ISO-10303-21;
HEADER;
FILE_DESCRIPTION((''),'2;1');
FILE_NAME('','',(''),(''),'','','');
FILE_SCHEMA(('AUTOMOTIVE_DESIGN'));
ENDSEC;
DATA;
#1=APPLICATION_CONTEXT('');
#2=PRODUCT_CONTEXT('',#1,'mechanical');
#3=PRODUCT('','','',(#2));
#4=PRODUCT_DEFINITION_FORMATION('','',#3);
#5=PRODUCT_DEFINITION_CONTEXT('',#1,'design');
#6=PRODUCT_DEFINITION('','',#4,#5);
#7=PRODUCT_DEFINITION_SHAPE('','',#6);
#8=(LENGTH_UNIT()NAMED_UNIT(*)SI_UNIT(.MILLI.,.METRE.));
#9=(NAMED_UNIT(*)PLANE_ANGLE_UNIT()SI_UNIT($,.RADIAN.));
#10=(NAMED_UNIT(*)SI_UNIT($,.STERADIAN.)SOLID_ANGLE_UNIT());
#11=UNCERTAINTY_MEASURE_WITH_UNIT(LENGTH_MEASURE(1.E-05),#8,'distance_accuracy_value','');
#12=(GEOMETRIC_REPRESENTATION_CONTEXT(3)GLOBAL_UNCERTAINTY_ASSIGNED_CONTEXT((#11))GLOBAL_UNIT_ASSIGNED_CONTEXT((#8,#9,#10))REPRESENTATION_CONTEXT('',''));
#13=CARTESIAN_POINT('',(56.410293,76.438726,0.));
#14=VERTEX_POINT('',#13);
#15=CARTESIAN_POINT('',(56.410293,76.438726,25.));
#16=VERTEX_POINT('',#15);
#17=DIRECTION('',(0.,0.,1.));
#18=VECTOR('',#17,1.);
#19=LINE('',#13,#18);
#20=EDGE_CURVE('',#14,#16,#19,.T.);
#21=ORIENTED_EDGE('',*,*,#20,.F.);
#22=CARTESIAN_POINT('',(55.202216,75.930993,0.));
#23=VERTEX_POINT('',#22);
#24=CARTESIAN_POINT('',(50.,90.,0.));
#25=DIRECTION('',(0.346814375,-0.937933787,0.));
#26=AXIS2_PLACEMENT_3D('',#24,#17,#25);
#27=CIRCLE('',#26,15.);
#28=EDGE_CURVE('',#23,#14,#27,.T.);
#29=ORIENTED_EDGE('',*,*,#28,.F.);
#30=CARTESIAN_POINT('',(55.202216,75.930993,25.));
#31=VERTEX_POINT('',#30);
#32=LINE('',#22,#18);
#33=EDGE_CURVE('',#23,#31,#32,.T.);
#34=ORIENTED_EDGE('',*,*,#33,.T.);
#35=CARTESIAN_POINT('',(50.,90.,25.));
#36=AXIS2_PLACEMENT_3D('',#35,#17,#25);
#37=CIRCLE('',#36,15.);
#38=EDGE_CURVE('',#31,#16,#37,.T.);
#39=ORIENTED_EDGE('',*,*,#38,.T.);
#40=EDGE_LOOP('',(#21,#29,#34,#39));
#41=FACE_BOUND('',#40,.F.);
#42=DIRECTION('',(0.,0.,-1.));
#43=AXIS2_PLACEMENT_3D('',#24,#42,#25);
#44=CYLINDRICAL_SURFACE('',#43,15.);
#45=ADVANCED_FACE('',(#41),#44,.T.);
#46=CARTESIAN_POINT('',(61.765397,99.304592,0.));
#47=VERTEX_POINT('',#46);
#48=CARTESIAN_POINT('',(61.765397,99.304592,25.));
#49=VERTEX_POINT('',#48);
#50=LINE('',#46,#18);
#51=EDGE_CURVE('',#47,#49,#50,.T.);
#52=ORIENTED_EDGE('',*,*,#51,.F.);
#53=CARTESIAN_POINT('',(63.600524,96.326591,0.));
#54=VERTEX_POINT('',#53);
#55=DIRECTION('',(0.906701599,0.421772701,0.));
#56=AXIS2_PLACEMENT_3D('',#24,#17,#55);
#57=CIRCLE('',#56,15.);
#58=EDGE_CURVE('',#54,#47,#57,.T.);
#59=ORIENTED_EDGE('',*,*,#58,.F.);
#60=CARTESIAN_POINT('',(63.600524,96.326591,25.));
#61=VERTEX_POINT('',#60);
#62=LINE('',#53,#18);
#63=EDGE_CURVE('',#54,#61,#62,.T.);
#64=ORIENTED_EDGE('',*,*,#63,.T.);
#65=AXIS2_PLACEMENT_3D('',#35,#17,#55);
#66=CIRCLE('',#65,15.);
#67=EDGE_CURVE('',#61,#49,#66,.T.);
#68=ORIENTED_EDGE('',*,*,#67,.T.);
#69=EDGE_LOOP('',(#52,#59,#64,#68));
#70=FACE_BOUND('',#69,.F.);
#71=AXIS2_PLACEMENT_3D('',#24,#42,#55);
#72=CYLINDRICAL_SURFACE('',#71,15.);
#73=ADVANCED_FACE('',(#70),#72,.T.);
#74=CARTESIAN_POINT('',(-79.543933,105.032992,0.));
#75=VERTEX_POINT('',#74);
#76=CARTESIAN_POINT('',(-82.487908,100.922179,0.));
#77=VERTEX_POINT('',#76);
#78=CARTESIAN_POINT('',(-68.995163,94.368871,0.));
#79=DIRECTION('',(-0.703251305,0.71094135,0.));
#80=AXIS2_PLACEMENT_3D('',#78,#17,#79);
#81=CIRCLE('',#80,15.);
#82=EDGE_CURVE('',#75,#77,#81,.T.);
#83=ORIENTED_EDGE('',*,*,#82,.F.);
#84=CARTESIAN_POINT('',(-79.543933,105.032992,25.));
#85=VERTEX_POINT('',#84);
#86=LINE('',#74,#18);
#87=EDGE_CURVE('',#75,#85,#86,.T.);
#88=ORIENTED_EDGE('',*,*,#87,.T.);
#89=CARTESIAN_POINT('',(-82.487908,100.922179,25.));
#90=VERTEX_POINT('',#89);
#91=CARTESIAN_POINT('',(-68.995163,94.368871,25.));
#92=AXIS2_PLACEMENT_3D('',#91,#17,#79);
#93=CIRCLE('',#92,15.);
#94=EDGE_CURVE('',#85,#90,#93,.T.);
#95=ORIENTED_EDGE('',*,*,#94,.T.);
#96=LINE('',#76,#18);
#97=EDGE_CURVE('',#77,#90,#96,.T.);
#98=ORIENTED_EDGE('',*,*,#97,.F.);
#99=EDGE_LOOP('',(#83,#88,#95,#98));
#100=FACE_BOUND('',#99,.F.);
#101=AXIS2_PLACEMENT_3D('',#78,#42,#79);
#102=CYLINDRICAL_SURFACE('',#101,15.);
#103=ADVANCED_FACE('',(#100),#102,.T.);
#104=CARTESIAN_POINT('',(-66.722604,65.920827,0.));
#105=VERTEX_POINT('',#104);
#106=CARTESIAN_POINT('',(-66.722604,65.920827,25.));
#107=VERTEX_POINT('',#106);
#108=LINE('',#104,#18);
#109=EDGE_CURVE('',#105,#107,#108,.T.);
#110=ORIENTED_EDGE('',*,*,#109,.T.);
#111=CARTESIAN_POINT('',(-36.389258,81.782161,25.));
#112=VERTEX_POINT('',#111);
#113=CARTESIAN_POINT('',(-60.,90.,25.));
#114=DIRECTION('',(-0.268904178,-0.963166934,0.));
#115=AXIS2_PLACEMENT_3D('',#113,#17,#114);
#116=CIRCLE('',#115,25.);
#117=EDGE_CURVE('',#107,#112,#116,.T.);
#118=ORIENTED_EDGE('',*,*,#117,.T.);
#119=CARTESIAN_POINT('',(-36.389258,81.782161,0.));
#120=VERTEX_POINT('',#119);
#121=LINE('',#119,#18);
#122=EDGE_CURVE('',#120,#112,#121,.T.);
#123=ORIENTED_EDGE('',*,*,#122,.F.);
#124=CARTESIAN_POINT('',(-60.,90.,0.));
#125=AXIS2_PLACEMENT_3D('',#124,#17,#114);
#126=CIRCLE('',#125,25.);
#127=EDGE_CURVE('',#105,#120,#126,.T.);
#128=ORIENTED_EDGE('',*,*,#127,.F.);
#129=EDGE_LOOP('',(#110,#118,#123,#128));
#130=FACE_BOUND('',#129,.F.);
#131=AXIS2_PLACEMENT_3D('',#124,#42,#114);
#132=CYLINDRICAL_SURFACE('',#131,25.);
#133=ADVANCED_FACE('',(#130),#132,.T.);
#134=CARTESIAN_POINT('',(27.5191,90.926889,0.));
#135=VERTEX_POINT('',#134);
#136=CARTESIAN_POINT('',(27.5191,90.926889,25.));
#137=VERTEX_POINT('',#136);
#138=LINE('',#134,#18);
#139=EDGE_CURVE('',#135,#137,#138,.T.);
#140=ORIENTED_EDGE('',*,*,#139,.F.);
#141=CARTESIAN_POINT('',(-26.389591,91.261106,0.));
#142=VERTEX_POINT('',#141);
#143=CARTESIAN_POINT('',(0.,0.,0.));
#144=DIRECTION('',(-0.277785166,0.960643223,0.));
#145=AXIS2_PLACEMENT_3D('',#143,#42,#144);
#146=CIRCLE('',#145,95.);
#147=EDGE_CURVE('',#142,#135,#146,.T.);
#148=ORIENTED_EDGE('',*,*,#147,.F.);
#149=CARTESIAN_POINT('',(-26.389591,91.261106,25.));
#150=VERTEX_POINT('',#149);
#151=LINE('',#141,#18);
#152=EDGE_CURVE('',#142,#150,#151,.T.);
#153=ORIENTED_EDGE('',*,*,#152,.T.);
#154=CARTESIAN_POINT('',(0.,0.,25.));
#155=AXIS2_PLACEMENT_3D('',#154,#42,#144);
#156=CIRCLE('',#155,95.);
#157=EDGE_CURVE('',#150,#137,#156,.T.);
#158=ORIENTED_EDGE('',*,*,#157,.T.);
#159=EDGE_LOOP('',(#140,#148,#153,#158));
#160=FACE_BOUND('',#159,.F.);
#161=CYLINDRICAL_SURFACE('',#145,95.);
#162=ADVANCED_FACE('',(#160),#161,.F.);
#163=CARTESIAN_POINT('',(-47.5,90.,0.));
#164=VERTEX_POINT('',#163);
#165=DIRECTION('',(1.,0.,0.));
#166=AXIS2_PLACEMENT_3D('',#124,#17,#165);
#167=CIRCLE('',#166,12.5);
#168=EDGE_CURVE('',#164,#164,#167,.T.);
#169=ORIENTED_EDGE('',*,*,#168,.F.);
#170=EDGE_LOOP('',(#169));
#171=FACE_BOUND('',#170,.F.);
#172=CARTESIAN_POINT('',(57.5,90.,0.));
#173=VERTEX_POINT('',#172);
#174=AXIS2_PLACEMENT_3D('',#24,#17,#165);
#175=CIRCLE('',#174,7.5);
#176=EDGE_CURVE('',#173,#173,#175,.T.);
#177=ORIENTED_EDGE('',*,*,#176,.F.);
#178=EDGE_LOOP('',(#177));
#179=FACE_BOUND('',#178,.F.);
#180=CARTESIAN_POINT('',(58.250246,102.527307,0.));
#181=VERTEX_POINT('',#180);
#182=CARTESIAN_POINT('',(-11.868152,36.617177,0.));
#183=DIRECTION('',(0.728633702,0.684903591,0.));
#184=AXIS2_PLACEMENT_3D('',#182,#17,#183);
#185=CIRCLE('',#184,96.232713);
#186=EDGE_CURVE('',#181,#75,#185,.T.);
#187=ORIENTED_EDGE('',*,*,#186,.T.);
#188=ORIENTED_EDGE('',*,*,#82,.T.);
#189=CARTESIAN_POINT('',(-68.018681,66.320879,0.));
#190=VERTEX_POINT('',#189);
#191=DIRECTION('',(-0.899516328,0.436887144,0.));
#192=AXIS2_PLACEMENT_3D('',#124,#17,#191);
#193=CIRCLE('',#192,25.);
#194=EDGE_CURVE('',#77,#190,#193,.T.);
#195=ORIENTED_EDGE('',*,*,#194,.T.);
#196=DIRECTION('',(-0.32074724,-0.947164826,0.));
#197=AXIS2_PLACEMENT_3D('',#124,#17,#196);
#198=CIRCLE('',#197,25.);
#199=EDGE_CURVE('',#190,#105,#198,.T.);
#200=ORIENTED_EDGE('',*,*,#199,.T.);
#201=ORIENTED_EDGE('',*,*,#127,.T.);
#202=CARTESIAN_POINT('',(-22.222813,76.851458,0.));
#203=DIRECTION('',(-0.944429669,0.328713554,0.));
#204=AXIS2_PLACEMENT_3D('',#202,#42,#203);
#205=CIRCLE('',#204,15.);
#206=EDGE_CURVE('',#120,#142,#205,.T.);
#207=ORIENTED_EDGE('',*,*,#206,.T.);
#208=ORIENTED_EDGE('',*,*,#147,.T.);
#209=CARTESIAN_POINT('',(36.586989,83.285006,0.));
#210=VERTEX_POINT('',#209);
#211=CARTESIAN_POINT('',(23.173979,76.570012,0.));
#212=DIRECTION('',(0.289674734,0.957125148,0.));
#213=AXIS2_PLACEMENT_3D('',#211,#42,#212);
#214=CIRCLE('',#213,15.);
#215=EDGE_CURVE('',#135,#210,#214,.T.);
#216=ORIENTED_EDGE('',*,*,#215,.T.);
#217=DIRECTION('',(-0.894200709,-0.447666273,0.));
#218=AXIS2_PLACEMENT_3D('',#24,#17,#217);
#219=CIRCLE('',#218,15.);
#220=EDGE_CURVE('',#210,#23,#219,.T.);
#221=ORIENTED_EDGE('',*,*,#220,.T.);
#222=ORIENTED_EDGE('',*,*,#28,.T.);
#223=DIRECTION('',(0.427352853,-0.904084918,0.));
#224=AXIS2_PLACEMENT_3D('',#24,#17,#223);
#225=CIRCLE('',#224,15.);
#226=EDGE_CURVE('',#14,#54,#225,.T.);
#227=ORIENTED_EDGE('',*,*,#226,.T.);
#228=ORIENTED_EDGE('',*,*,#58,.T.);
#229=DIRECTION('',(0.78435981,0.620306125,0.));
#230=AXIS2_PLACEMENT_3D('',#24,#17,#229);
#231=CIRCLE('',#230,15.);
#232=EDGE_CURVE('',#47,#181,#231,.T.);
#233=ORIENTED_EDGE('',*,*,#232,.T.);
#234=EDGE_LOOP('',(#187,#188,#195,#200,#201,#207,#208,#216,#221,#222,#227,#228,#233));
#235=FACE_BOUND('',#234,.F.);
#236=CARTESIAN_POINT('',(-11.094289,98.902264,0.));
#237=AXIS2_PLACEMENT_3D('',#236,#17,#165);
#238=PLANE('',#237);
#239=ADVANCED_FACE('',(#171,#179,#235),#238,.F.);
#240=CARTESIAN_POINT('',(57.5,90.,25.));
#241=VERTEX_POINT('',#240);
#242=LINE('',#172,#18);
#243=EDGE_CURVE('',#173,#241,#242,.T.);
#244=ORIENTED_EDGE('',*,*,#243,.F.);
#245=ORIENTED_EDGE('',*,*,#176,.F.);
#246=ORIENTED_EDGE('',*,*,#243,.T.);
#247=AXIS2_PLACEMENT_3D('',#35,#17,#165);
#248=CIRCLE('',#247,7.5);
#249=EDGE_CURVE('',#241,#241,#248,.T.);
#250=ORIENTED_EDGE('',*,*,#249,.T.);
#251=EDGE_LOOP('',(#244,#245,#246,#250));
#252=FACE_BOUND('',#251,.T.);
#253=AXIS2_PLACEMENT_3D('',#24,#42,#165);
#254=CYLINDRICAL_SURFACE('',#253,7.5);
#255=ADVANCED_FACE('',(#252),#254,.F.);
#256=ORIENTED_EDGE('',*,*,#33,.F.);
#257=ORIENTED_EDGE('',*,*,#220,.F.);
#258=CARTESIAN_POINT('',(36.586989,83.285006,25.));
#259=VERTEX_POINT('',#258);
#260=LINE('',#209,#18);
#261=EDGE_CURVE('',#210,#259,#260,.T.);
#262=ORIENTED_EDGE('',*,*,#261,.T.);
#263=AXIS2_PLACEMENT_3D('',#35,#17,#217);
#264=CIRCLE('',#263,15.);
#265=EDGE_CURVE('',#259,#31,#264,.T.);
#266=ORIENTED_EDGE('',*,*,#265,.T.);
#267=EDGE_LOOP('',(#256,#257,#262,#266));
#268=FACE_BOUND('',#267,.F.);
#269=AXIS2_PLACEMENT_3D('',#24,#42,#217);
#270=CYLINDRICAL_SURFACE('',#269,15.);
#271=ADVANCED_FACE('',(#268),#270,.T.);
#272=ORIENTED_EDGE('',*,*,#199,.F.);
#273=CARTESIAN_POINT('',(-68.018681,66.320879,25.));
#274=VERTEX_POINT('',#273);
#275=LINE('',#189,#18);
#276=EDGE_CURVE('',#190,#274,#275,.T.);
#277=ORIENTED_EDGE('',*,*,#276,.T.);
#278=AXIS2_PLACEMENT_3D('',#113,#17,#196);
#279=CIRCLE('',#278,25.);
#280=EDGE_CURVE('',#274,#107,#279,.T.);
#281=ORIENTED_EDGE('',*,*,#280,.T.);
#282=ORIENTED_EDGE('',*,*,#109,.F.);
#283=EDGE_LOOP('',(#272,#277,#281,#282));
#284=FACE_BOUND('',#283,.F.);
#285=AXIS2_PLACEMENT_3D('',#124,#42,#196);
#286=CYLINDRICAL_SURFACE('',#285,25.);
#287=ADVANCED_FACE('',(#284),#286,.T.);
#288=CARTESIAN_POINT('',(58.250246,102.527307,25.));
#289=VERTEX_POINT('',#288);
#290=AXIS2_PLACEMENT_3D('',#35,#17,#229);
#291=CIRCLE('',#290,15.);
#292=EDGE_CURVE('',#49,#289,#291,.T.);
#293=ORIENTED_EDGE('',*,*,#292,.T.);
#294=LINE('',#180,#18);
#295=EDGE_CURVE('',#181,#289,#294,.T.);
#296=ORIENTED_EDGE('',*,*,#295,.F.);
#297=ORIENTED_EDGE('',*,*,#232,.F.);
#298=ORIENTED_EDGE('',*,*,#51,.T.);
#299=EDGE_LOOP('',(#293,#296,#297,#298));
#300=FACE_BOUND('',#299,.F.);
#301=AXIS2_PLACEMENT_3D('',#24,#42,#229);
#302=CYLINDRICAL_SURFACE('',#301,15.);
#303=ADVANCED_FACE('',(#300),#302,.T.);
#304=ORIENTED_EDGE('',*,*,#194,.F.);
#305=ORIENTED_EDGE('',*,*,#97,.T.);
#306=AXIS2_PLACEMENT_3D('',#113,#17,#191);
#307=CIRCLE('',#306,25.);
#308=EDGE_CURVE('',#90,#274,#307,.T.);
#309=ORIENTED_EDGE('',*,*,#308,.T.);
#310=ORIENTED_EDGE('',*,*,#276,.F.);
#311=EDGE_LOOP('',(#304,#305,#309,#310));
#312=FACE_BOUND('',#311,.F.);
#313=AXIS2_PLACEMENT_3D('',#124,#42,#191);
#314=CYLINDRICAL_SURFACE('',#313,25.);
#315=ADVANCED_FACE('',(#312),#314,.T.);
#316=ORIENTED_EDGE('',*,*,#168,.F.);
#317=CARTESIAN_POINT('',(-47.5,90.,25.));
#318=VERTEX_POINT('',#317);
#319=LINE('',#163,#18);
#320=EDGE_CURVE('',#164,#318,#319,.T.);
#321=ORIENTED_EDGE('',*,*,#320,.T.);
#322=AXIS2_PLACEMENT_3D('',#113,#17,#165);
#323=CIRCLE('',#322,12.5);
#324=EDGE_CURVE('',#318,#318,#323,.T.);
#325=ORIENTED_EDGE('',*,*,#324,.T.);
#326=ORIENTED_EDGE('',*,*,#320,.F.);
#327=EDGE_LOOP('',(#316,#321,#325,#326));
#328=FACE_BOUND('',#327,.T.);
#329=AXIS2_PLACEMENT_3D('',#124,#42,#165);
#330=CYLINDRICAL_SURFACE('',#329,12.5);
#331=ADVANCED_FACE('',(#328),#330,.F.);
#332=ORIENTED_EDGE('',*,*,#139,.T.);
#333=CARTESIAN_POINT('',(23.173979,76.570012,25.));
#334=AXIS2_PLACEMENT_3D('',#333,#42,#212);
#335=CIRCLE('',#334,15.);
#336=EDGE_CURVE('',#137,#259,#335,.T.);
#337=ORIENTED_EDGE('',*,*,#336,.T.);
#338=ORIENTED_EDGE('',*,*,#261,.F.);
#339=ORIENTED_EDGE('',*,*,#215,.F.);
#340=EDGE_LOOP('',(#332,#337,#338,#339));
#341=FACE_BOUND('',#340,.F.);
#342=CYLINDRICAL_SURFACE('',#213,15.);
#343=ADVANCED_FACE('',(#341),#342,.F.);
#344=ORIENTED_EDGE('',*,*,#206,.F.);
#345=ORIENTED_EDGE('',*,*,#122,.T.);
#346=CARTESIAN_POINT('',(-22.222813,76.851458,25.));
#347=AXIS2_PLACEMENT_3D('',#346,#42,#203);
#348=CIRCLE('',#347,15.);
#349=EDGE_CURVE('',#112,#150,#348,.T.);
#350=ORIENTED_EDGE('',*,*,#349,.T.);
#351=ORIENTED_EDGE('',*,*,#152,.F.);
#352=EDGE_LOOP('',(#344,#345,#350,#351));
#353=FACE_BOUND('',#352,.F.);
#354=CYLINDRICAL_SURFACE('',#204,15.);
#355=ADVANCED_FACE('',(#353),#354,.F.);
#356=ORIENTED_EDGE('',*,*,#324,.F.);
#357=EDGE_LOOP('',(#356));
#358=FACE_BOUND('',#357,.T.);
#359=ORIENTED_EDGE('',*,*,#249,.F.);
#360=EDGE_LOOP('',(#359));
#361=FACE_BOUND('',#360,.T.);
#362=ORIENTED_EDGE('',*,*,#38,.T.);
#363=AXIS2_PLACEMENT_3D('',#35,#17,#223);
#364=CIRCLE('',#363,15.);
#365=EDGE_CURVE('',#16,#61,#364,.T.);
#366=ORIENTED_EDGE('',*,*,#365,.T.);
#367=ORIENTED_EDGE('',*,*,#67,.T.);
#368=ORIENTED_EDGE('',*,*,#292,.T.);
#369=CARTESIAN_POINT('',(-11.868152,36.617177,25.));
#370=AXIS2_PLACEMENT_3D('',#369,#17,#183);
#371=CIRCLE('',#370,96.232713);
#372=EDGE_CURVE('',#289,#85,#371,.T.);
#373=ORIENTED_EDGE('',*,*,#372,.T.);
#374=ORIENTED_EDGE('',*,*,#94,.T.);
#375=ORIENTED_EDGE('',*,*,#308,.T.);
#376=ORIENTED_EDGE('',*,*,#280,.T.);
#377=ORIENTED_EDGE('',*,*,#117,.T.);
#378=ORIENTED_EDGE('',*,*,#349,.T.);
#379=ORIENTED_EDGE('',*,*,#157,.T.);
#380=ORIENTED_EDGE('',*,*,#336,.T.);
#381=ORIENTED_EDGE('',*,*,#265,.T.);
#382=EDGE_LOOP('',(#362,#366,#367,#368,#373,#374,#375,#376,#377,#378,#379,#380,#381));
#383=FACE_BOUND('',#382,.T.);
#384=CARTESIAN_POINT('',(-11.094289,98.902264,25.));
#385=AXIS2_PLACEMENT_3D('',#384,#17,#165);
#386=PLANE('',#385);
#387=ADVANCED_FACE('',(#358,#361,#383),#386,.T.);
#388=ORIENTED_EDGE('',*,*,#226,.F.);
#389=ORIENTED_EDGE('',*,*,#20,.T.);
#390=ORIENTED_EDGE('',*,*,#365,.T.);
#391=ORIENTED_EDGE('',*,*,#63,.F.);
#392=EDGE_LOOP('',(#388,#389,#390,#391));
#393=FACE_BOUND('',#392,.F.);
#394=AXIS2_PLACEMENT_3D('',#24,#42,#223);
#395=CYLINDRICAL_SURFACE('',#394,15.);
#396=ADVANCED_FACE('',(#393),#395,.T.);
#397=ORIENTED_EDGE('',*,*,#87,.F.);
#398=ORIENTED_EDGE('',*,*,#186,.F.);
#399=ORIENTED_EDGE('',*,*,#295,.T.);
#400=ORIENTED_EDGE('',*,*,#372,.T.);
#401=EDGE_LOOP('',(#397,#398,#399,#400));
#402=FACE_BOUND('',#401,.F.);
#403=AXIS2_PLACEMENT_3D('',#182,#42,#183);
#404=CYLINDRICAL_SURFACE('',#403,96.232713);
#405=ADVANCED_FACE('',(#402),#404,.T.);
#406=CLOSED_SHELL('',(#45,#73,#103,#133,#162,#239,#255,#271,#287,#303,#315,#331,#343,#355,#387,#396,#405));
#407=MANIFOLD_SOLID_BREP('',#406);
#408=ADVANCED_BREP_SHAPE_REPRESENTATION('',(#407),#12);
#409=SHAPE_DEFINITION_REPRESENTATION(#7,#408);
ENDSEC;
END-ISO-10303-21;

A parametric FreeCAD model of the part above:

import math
import FreeCAD as App
import Part
import Sketcher
from FreeCAD import Vector
Q = App.Units.Quantity

doc = App.newDocument("Part")
body = doc.addObject("PartDesign::Body", "Body")

# Sketch on XY plane
sketch1 = body.newObject("Sketcher::SketchObject", "Sketch")
sketch1.AttachmentSupport = (doc.getObject("XY_Plane"), [""])
sketch1.MapMode = "FlatFace"
sketch1.addGeometry([
    Part.ArcOfCircle(Part.Circle(Vector(-69, 94.4, 0), Vector(0, 0, 1), 15), math.radians(134.69), math.radians(154.09)),  # 0
    Part.ArcOfCircle(Part.Circle(Vector(-60, 90, 0), Vector(0, 0, 1), 25), math.radians(154), math.radians(251)),  # 1
    Part.ArcOfCircle(Part.Circle(Vector(-60, 90, 0), Vector(0, 0, 1), 25), math.radians(-108.71), math.radians(-105.6)),  # 2
    Part.ArcOfCircle(Part.Circle(Vector(-60, 90, 0), Vector(0, 0, 1), 25), math.radians(-106), math.radians(-19)),  # 3
    Part.ArcOfCircle(Part.Circle(Vector(-22.2, 76.9, 0), Vector(0, 0, 1), 15), math.radians(106), math.radians(161)),  # 4
    Part.ArcOfCircle(Part.Circle(Vector(0, 0, 0), Vector(0, 0, 1), 95), math.radians(73), math.radians(106)),  # 5
    Part.ArcOfCircle(Part.Circle(Vector(23.2, 76.6, 0), Vector(0, 0, 1), 15), math.radians(27), math.radians(73)),  # 6
    Part.ArcOfCircle(Part.Circle(Vector(50, 90, 0), Vector(0, 0, 1), 15), math.radians(-153), math.radians(-70)),  # 7
    Part.ArcOfCircle(Part.Circle(Vector(50, 90, 0), Vector(0, 0, 1), 15), math.radians(-69.71), math.radians(-64.7)),  # 8
    Part.ArcOfCircle(Part.Circle(Vector(50, 90, 0), Vector(0, 0, 1), 15), math.radians(-65), math.radians(25)),  # 9
    Part.ArcOfCircle(Part.Circle(Vector(50, 90, 0), Vector(0, 0, 1), 15), math.radians(24.95), math.radians(38.34)),  # 10
    Part.ArcOfCircle(Part.Circle(Vector(50, 90, 0), Vector(0, 0, 1), 15), math.radians(38.34), math.radians(56.63)),  # 11
    Part.ArcOfCircle(Part.Circle(Vector(-11.9, 36.6, 0), Vector(0, 0, 1), 96.2), math.radians(43), math.radians(135)),  # 12
    Part.Circle(Vector(-60, 90, 0), Vector(0, 0, 1), 12.5),  # 13
    Part.Circle(Vector(50, 90, 0), Vector(0, 0, 1), 7.5),  # 14
], False)
sketch1.addConstraint([
    Sketcher.Constraint("Tangent", 0, 2, 1, 1),
    Sketcher.Constraint("Tangent", 1, 2, 2, 1),
    Sketcher.Constraint("Tangent", 2, 2, 3, 1),
    Sketcher.Constraint("Tangent", 3, 2, 4, 2),
    Sketcher.Constraint("Tangent", 4, 1, 5, 2),
    Sketcher.Constraint("Tangent", 5, 1, 6, 2),
    Sketcher.Constraint("Tangent", 6, 1, 7, 1),
    Sketcher.Constraint("Tangent", 7, 2, 8, 1),
    Sketcher.Constraint("Tangent", 8, 2, 9, 1),
    Sketcher.Constraint("Tangent", 9, 2, 10, 1),
    Sketcher.Constraint("Tangent", 10, 2, 11, 1),
    Sketcher.Constraint("Coincident", 11, 2, 12, 1),
    Sketcher.Constraint("Tangent", 12, 2, 0, 1),
    Sketcher.Constraint("Coincident", 5, 3, -1, 1),
    Sketcher.Constraint("Coincident", 3, 3, 1, 3),
    Sketcher.Constraint("Coincident", 9, 3, 7, 3),
    Sketcher.Constraint("Coincident", 11, 3, 7, 3),
    Sketcher.Constraint("Coincident", 13, 3, 1, 3),
    Sketcher.Constraint("Coincident", 14, 3, 7, 3),
    Sketcher.Constraint("Equal", 0, 4),
    Sketcher.Constraint("Equal", 4, 6),
    Sketcher.Constraint("Equal", 6, 7),
    Sketcher.Constraint("Horizontal", 3, 3, 7, 3),
    Sketcher.Constraint("Diameter", 13, Q("25 mm")),
    Sketcher.Constraint("Diameter", 14, Q("15 mm")),
    Sketcher.Constraint("Radius", 0, Q("15 mm")),
    Sketcher.Constraint("Radius", 1, Q("25 mm")),
    Sketcher.Constraint("Radius", 5, Q("95 mm")),
    Sketcher.Constraint("DistanceX", 1, 3, -1, 1, Q("60 mm")),
    Sketcher.Constraint("DistanceY", -1, 1, 1, 3, Q("90 mm")),
    Sketcher.Constraint("DistanceX", -1, 1, 7, 3, Q("50 mm")),
    Sketcher.Constraint("Radius", 12, Q("96.232713 mm")),
    Sketcher.Constraint("DistanceY", 9, 2, 10, 2, Q("2.978001 mm")),
    Sketcher.Constraint("DistanceY", -1, 1, 0, 3, Q("94.368871 mm")),
    Sketcher.Constraint("DistanceX", 12, 3, -1, 1, Q("11.868152 mm")),
    Sketcher.Constraint("DistanceX", 1, 2, -1, 1, Q("68.018681 mm")),
    Sketcher.Constraint("DistanceY", -1, 1, 9, 2, Q("96.326591 mm")),
    Sketcher.Constraint("DistanceX", 2, 2, -1, 1, Q("66.722604 mm")),
    Sketcher.Constraint("DistanceX", -1, 1, 7, 2, Q("55.202216 mm")),
    Sketcher.Constraint("DistanceX", -1, 1, 8, 2, Q("56.410293 mm")),
])
pad1 = body.newObject("PartDesign::Pad", "Pad")
pad1.Profile = sketch1
pad1.Length = 25

doc.recompute()
